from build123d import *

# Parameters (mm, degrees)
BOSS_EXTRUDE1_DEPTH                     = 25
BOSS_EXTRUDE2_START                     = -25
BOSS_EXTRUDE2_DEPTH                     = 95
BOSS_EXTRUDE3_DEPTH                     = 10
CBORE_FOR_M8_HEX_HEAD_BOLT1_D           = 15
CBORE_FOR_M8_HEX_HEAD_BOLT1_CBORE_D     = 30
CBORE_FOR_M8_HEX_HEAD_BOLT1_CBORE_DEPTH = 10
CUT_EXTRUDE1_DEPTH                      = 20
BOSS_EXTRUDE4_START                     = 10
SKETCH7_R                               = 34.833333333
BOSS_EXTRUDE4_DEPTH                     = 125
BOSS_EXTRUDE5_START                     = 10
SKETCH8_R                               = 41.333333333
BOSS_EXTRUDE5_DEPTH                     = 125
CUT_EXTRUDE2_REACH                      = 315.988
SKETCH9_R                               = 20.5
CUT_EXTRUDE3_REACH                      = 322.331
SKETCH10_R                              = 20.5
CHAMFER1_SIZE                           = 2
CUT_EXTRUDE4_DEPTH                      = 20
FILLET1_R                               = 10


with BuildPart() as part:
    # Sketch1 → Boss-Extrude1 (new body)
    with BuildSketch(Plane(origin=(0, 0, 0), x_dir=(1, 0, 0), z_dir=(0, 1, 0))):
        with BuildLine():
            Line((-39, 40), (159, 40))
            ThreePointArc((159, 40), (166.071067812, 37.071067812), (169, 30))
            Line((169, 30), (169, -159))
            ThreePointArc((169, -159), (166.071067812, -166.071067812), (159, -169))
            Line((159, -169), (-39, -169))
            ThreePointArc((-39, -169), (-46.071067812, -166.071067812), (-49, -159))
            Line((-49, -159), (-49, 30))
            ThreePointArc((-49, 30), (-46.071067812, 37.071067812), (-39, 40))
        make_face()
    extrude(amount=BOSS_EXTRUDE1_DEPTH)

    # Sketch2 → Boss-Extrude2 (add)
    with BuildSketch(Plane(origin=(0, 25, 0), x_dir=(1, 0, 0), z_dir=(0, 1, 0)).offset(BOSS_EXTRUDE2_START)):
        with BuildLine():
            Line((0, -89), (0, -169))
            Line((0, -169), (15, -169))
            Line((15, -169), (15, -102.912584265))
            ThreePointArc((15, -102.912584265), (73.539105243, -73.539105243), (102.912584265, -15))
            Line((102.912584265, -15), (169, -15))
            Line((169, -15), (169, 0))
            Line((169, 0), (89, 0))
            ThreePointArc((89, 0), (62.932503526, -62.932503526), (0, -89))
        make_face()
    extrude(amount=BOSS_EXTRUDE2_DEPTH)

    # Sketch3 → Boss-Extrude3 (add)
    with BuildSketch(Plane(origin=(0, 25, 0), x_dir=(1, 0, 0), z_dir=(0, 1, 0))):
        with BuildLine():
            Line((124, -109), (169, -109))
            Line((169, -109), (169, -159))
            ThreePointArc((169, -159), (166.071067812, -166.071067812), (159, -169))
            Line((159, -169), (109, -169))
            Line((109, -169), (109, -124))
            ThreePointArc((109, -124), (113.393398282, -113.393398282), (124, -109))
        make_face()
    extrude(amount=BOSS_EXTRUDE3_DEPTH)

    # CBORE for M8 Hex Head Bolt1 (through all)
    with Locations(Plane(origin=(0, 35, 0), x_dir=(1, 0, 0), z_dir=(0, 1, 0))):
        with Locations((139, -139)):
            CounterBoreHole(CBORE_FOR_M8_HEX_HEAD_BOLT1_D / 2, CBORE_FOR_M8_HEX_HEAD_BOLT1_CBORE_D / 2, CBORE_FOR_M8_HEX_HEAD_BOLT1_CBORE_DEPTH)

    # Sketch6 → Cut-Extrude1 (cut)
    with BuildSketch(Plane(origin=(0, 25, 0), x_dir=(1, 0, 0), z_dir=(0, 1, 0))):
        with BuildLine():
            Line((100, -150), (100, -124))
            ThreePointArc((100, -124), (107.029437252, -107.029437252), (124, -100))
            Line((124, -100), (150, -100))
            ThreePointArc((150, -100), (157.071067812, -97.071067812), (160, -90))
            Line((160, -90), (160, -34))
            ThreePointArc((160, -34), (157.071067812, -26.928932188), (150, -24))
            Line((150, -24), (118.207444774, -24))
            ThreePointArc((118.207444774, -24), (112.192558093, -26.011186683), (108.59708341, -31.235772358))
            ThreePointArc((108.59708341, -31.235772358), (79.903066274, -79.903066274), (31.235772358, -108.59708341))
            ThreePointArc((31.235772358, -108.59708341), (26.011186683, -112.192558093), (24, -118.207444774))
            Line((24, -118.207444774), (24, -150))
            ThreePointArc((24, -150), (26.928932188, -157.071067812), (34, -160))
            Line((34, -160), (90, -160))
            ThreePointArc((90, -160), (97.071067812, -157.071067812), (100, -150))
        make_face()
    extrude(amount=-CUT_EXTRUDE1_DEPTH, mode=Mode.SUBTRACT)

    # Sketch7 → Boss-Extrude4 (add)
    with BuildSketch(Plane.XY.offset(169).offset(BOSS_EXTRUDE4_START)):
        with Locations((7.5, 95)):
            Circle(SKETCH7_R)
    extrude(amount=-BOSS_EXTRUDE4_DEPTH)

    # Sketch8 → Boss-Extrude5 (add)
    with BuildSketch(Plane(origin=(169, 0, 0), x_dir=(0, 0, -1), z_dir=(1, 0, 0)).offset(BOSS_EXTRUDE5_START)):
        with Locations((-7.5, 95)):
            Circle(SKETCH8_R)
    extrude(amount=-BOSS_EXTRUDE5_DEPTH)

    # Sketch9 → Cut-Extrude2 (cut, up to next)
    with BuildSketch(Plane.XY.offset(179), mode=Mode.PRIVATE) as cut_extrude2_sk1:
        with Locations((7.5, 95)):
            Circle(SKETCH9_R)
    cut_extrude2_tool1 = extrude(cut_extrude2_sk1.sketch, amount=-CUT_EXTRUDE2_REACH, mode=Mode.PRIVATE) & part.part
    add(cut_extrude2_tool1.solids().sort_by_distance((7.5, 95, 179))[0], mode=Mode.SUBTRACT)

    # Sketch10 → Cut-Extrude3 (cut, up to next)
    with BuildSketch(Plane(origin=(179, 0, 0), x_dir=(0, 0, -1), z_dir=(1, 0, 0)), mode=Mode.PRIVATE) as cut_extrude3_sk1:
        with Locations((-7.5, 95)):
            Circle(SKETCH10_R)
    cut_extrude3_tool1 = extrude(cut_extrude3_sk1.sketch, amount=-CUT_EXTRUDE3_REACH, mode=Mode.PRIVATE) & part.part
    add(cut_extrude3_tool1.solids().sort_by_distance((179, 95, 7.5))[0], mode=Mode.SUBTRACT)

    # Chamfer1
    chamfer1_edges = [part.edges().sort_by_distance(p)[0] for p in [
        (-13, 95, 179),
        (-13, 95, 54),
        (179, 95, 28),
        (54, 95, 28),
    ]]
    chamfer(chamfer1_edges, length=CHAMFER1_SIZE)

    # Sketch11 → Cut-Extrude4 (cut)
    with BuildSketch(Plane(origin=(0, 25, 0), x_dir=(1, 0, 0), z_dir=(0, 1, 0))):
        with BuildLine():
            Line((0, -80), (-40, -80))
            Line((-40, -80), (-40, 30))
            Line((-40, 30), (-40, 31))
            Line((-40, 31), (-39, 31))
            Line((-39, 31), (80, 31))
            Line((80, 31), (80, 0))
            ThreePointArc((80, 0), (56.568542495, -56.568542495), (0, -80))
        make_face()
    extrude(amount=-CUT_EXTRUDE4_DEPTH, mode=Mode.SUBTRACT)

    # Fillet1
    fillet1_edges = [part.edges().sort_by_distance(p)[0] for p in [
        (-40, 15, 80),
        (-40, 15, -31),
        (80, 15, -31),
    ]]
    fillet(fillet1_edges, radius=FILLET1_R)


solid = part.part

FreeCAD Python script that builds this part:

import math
import FreeCAD as App
import Part
import Sketcher

V = App.Vector
Q = App.Units.Quantity


def edges_at(feature, points):
    """Names of the edges that pass closest to the given points."""
    edges = feature.Shape.Edges
    near = lambda p: min(range(len(edges)), key=lambda i: edges[i].distToShape(Part.Vertex(*p))[0])
    return sorted({f"Edge{near(p) + 1}" for p in points})

doc = App.newDocument("Part")
body = doc.addObject("PartDesign::Body", "Body")

sketch1 = body.newObject("Sketcher::SketchObject", "Sketch")
sketch1.AttachmentSupport = (doc.getObject("XZ_Plane"), [""])
sketch1.MapMode = "FlatFace"
sketch1.addGeometry(Part.LineSegment(V(159, -40, 0), V(-39, -40, 0)), False)
sketch1.addGeometry(Part.ArcOfCircle(Part.Circle(V(-39, -30, 0), V(0, 0, 1), 10), math.radians(180), math.radians(270)), False)
sketch1.addGeometry(Part.LineSegment(V(-49, -30, 0), V(-49, 159, 0)), False)
sketch1.addGeometry(Part.ArcOfCircle(Part.Circle(V(-39, 159, 0), V(0, 0, 1), 10), math.radians(90), math.radians(180)), False)
sketch1.addGeometry(Part.LineSegment(V(-39, 169, 0), V(159, 169, 0)), False)
sketch1.addGeometry(Part.ArcOfCircle(Part.Circle(V(159, 159, 0), V(0, 0, 1), 10), math.radians(0), math.radians(90)), False)
sketch1.addGeometry(Part.LineSegment(V(169, 159, 0), V(169, -30, 0)), False)
sketch1.addGeometry(Part.ArcOfCircle(Part.Circle(V(159, -30, 0), V(0, 0, 1), 10), math.radians(-90), math.radians(0)), False)
sketch1.addConstraint(Sketcher.Constraint("Tangent", 0, 2, 1, 2))
sketch1.addConstraint(Sketcher.Constraint("Tangent", 1, 1, 2, 1))
sketch1.addConstraint(Sketcher.Constraint("Tangent", 2, 2, 3, 2))
sketch1.addConstraint(Sketcher.Constraint("Tangent", 3, 1, 4, 1))
sketch1.addConstraint(Sketcher.Constraint("Tangent", 4, 2, 5, 2))
sketch1.addConstraint(Sketcher.Constraint("Tangent", 5, 1, 6, 1))
sketch1.addConstraint(Sketcher.Constraint("Tangent", 6, 2, 7, 2))
sketch1.addConstraint(Sketcher.Constraint("Tangent", 7, 1, 0, 1))
sketch1.addConstraint(Sketcher.Constraint("Horizontal", 0))
sketch1.addConstraint(Sketcher.Constraint("Vertical", 2))
sketch1.addConstraint(Sketcher.Constraint("Horizontal", 4))
sketch1.addConstraint(Sketcher.Constraint("Vertical", 6))
sketch1.addConstraint(Sketcher.Constraint("Equal", 1, 3))
sketch1.addConstraint(Sketcher.Constraint("Equal", 3, 5))
sketch1.addConstraint(Sketcher.Constraint("Equal", 5, 7))
sketch1.addConstraint(Sketcher.Constraint("Radius", 1, Q("10 mm")))
sketch1.addConstraint(Sketcher.Constraint("DistanceX", 0, 2, 0, 1, Q("198 mm")))
sketch1.addConstraint(Sketcher.Constraint("DistanceY", 2, 1, 2, 2, Q("189 mm")))
sketch1.addConstraint(Sketcher.Constraint("DistanceX", 1, 3, -1, 1, Q("39 mm")))
sketch1.addConstraint(Sketcher.Constraint("DistanceY", 1, 3, -1, 1, Q("30 mm")))
pad1 = body.newObject("PartDesign::Pad", "Pad")
pad1.Profile = sketch1
pad1.Length = 25
pad1.Reversed = True

sketch2 = body.newObject("Sketcher::SketchObject", "Sketch001")
sketch2.AttachmentSupport = (doc.getObject("XZ_Plane"), [""])
sketch2.MapMode = "FlatFace"
sketch2.addGeometry(Part.LineSegment(V(0, 89, 0), V(0, 169, 0)), False)
sketch2.addGeometry(Part.LineSegment(V(0, 169, 0), V(15, 169, 0)), False)
sketch2.addGeometry(Part.LineSegment(V(15, 169, 0), V(15, 102.912584, 0)), False)
sketch2.addGeometry(Part.ArcOfCircle(Part.Circle(V(0, 0, 0), V(0, 0, 1), 104), math.radians(8.292737), math.radians(81.707263)), False)
sketch2.addGeometry(Part.LineSegment(V(102.912584, 15, 0), V(169, 15, 0)), False)
sketch2.addGeometry(Part.LineSegment(V(169, 15, 0), V(169, 0, 0)), False)
sketch2.addGeometry(Part.LineSegment(V(169, 0, 0), V(89, 0, 0)), False)
sketch2.addGeometry(Part.ArcOfCircle(Part.Circle(V(0, 0, 0), V(0, 0, 1), 89), math.radians(0), math.radians(90)), False)
sketch2.addConstraint(Sketcher.Constraint("Coincident", 0, 2, 1, 1))
sketch2.addConstraint(Sketcher.Constraint("Coincident", 1, 2, 2, 1))
sketch2.addConstraint(Sketcher.Constraint("Coincident", 2, 2, 3, 2))
sketch2.addConstraint(Sketcher.Constraint("Coincident", 3, 1, 4, 1))
sketch2.addConstraint(Sketcher.Constraint("Coincident", 4, 2, 5, 1))
sketch2.addConstraint(Sketcher.Constraint("Coincident", 5, 2, 6, 1))
sketch2.addConstraint(Sketcher.Constraint("Coincident", 6, 2, 7, 1))
sketch2.addConstraint(Sketcher.Constraint("Coincident", 7, 2, 0, 1))
sketch2.addConstraint(Sketcher.Constraint("Vertical", 0))
sketch2.addConstraint(Sketcher.Constraint("Horizontal", 1))
sketch2.addConstraint(Sketcher.Constraint("Vertical", 2))
sketch2.addConstraint(Sketcher.Constraint("Horizontal", 4))
sketch2.addConstraint(Sketcher.Constraint("Vertical", 5))
sketch2.addConstraint(Sketcher.Constraint("Horizontal", 6))
sketch2.addConstraint(Sketcher.Constraint("Coincident", 3, 3, -1, 1))
sketch2.addConstraint(Sketcher.Constraint("Coincident", 7, 3, -1, 1))
sketch2.addConstraint(Sketcher.Constraint("PointOnObject", 0, 2, -2))
sketch2.addConstraint(Sketcher.Constraint("PointOnObject", 5, 2, -1))
sketch2.addConstraint(Sketcher.Constraint("Equal", 6, 0))
sketch2.addConstraint(Sketcher.Constraint("Equal", 4, 2))
sketch2.addConstraint(Sketcher.Constraint("Radius", 3, Q("104 mm")))
sketch2.addConstraint(Sketcher.Constraint("Radius", 7, Q("89 mm")))
sketch2.addConstraint(Sketcher.Constraint("DistanceX", 1, 1, 1, 2, Q("15 mm")))
sketch2.addConstraint(Sketcher.Constraint("DistanceX", 6, 2, 6, 1, Q("80 mm")))
pad2 = body.newObject("PartDesign::Pad", "Pad001")
pad2.Profile = sketch2
pad2.Length = 95
pad2.Reversed = True

sketch3 = body.newObject("Sketcher::SketchObject", "Sketch002")
sketch3.AttachmentSupport = (doc.getObject("XZ_Plane"), [""])
sketch3.MapMode = "FlatFace"
sketch3.AttachmentOffset = App.Placement(V(0, 0, -25), App.Rotation())
sketch3.addGeometry(Part.LineSegment(V(169, 109, 0), V(124, 109, 0)), False)
sketch3.addGeometry(Part.ArcOfCircle(Part.Circle(V(124, 124, 0), V(0, 0, 1), 15), math.radians(180), math.radians(270)), False)
sketch3.addGeometry(Part.LineSegment(V(109, 124, 0), V(109, 169, 0)), False)
sketch3.addGeometry(Part.LineSegment(V(109, 169, 0), V(159, 169, 0)), False)
sketch3.addGeometry(Part.ArcOfCircle(Part.Circle(V(159, 159, 0), V(0, 0, 1), 10), math.radians(0), math.radians(90)), False)
sketch3.addGeometry(Part.LineSegment(V(169, 159, 0), V(169, 109, 0)), False)
sketch3.addConstraint(Sketcher.Constraint("Tangent", 0, 2, 1, 2))
sketch3.addConstraint(Sketcher.Constraint("Tangent", 1, 1, 2, 1))
sketch3.addConstraint(Sketcher.Constraint("Coincident", 2, 2, 3, 1))
sketch3.addConstraint(Sketcher.Constraint("Tangent", 3, 2, 4, 2))
sketch3.addConstraint(Sketcher.Constraint("Tangent", 4, 1, 5, 1))
sketch3.addConstraint(Sketcher.Constraint("Coincident", 5, 2, 0, 1))
sketch3.addConstraint(Sketcher.Constraint("Horizontal", 0))
sketch3.addConstraint(Sketcher.Constraint("Vertical", 2))
sketch3.addConstraint(Sketcher.Constraint("Horizontal", 3))
sketch3.addConstraint(Sketcher.Constraint("Vertical", 5))
sketch3.addConstraint(Sketcher.Constraint("Equal", 0, 2))
sketch3.addConstraint(Sketcher.Constraint("Radius", 1, Q("15 mm")))
sketch3.addConstraint(Sketcher.Constraint("Radius", 4, Q("10 mm")))
sketch3.addConstraint(Sketcher.Constraint("DistanceX", 0, 2, 0, 1, Q("45 mm")))
sketch3.addConstraint(Sketcher.Constraint("DistanceX", -1, 1, 1, 3, Q("124 mm")))
sketch3.addConstraint(Sketcher.Constraint("DistanceY", -1, 1, 1, 3, Q("124 mm")))
pad3 = body.newObject("PartDesign::Pad", "Pad002")
pad3.Profile = sketch3
pad3.Length = 10
pad3.Reversed = True

sketch4 = body.newObject("Sketcher::SketchObject", "Sketch003")
sketch4.AttachmentSupport = (doc.getObject("XZ_Plane"), [""])
sketch4.MapMode = "FlatFace"
sketch4.AttachmentOffset = App.Placement(V(0, 0, -35), App.Rotation())
sketch4.addGeometry(Part.Circle(V(139, 139, 0), V(0, 0, 1), 7.5), False)
sketch4.addConstraint(Sketcher.Constraint("Diameter", 0, Q("15 mm")))
sketch4.addConstraint(Sketcher.Constraint("DistanceX", -1, 1, 0, 3, Q("139 mm")))
sketch4.addConstraint(Sketcher.Constraint("DistanceY", -1, 1, 0, 3, Q("139 mm")))
doc.recompute()
hole = body.newObject("PartDesign::Hole", "Hole")
hole.Profile = sketch4
hole.ThreadType = "None"
hole.Diameter = 15
hole.DepthType = "ThroughAll"
hole.HoleCutType = "Counterbore"
hole.HoleCutDiameter = 30
hole.HoleCutDepth = 10
hole.Reversed = True

sketch5 = body.newObject("Sketcher::SketchObject", "Sketch004")
sketch5.AttachmentSupport = (doc.getObject("XZ_Plane"), [""])
sketch5.MapMode = "FlatFace"
sketch5.AttachmentOffset = App.Placement(V(0, 0, -25), App.Rotation())
sketch5.addGeometry(Part.LineSegment(V(100, 150, 0), V(100, 124, 0)), False)
sketch5.addGeometry(Part.ArcOfCircle(Part.Circle(V(124, 124, 0), V(0, 0, 1), 24), math.radians(-180), math.radians(-90)), False)
sketch5.addGeometry(Part.LineSegment(V(124, 100, 0), V(150, 100, 0)), False)
sketch5.addGeometry(Part.ArcOfCircle(Part.Circle(V(150, 90, 0), V(0, 0, 1), 10), math.radians(0), math.radians(90)), False)
sketch5.addGeometry(Part.LineSegment(V(160, 90, 0), V(160, 34, 0)), False)
sketch5.addGeometry(Part.ArcOfCircle(Part.Circle(V(150, 34, 0), V(0, 0, 1), 10), math.radians(-90), math.radians(0)), False)
sketch5.addGeometry(Part.LineSegment(V(150, 24, 0), V(118.207445, 24, 0)), False)
sketch5.addGeometry(Part.ArcOfCircle(Part.Circle(V(118.207445, 34, 0), V(0, 0, 1), 10), math.radians(-163.95318), math.radians(-90)), False)
sketch5.addGeometry(Part.ArcOfCircle(Part.Circle(V(0, 0, 0), V(0, 0, 1), 113), math.radians(16.04682), math.radians(73.95318)), False)
sketch5.addGeometry(Part.ArcOfCircle(Part.Circle(V(34, 118.207445, 0), V(0, 0, 1), 10), math.radians(180), math.radians(253.95318)), False)
sketch5.addGeometry(Part.LineSegment(V(24, 118.207445, 0), V(24, 150, 0)), False)
sketch5.addGeometry(Part.ArcOfCircle(Part.Circle(V(34, 150, 0), V(0, 0, 1), 10), math.radians(90), math.radians(180)), False)
sketch5.addGeometry(Part.LineSegment(V(34, 160, 0), V(90, 160, 0)), False)
sketch5.addGeometry(Part.ArcOfCircle(Part.Circle(V(90, 150, 0), V(0, 0, 1), 10), math.radians(0), math.radians(90)), False)
sketch5.addConstraint(Sketcher.Constraint("Tangent", 0, 2, 1, 1))
sketch5.addConstraint(Sketcher.Constraint("Tangent", 1, 2, 2, 1))
sketch5.addConstraint(Sketcher.Constraint("Tangent", 2, 2, 3, 2))
sketch5.addConstraint(Sketcher.Constraint("Tangent", 3, 1, 4, 1))
sketch5.addConstraint(Sketcher.Constraint("Tangent", 4, 2, 5, 2))
sketch5.addConstraint(Sketcher.Constraint("Tangent", 5, 1, 6, 1))
sketch5.addConstraint(Sketcher.Constraint("Tangent", 6, 2, 7, 2))
sketch5.addConstraint(Sketcher.Constraint("Tangent", 7, 1, 8, 1))
sketch5.addConstraint(Sketcher.Constraint("Tangent", 8, 2, 9, 2))
sketch5.addConstraint(Sketcher.Constraint("Tangent", 9, 1, 10, 1))
sketch5.addConstraint(Sketcher.Constraint("Tangent", 10, 2, 11, 2))
sketch5.addConstraint(Sketcher.Constraint("Tangent", 11, 1, 12, 1))
sketch5.addConstraint(Sketcher.Constraint("Tangent", 12, 2, 13, 2))
sketch5.addConstraint(Sketcher.Constraint("Tangent", 13, 1, 0, 1))
sketch5.addConstraint(Sketcher.Constraint("Vertical", 0))
sketch5.addConstraint(Sketcher.Constraint("Horizontal", 2))
sketch5.addConstraint(Sketcher.Constraint("Vertical", 4))
sketch5.addConstraint(Sketcher.Constraint("Horizontal", 6))
sketch5.addConstraint(Sketcher.Constraint("Vertical", 10))
sketch5.addConstraint(Sketcher.Constraint("Horizontal", 12))
sketch5.addConstraint(Sketcher.Constraint("Coincident", 8, 3, -1, 1))
sketch5.addConstraint(Sketcher.Constraint("Equal", 3, 5))
sketch5.addConstraint(Sketcher.Constraint("Equal", 5, 7))
sketch5.addConstraint(Sketcher.Constraint("Equal", 7, 9))
sketch5.addConstraint(Sketcher.Constraint("Equal", 9, 11))
sketch5.addConstraint(Sketcher.Constraint("Equal", 11, 13))
sketch5.addConstraint(Sketcher.Constraint("Equal", 2, 0))
sketch5.addConstraint(Sketcher.Constraint("Equal", 12, 4))
sketch5.addConstraint(Sketcher.Constraint("Equal", 6, 10))
sketch5.addConstraint(Sketcher.Constraint("Radius", 1, Q("24 mm")))
sketch5.addConstraint(Sketcher.Constraint("Radius", 3, Q("10 mm")))
sketch5.addConstraint(Sketcher.Constraint("Radius", 8, Q("113 mm")))
sketch5.addConstraint(Sketcher.Constraint("DistanceX", 2, 1, 2, 2, Q("26 mm")))
sketch5.addConstraint(Sketcher.Constraint("DistanceX", 12, 1, 12, 2, Q("56 mm")))
sketch5.addConstraint(Sketcher.Constraint("DistanceX", -1, 1, 1, 3, Q("124 mm")))
pocket1 = body.newObject("PartDesign::Pocket", "Pocket")
pocket1.Profile = sketch5
pocket1.Length = 20
pocket1.Reversed = True

sketch6 = body.newObject("Sketcher::SketchObject", "Sketch005")
sketch6.AttachmentSupport = (doc.getObject("XY_Plane"), [""])
sketch6.MapMode = "FlatFace"
sketch6.AttachmentOffset = App.Placement(V(0, 0, 179), App.Rotation())
sketch6.addGeometry(Part.Circle(V(7.5, 95, 0), V(0, 0, 1), 34.833333), False)
sketch6.addConstraint(Sketcher.Constraint("DistanceY", -1, 1, 0, 3, Q("95 mm")))
sketch6.addConstraint(Sketcher.Constraint("DistanceX", -1, 1, 0, 3, Q("7.5 mm")))
sketch6.addConstraint(Sketcher.Constraint("Diameter", 0, Q("69.666667 mm")))
pad4 = body.newObject("PartDesign::Pad", "Pad003")
pad4.Profile = sketch6
pad4.Length = 125
pad4.Reversed = True

sketch7 = body.newObject("Sketcher::SketchObject", "Sketch006")
sketch7.AttachmentSupport = (doc.getObject("YZ_Plane"), [""])
sketch7.MapMode = "FlatFace"
sketch7.AttachmentOffset = App.Placement(V(0, 0, 179), App.Rotation())
sketch7.addGeometry(Part.Circle(V(95, 7.5, 0), V(0, 0, 1), 41.333333), False)
sketch7.addConstraint(Sketcher.Constraint("DistanceX", -1, 1, 0, 3, Q("95 mm")))
sketch7.addConstraint(Sketcher.Constraint("DistanceY", -1, 1, 0, 3, Q("7.5 mm")))
sketch7.addConstraint(Sketcher.Constraint("Diameter", 0, Q("82.666667 mm")))
pad5 = body.newObject("PartDesign::Pad", "Pad004")
pad5.Profile = sketch7
pad5.Length = 125
pad5.Reversed = True

sketch8 = body.newObject("Sketcher::SketchObject", "Sketch007")
sketch8.AttachmentSupport = (doc.getObject("XY_Plane"), [""])
sketch8.MapMode = "FlatFace"
sketch8.AttachmentOffset = App.Placement(V(0, 0, 179), App.Rotation())
sketch8.addGeometry(Part.Circle(V(7.5, 95, 0), V(0, 0, 1), 20.5), False)
sketch8.addConstraint(Sketcher.Constraint("Diameter", 0, Q("41 mm")))
sketch8.addConstraint(Sketcher.Constraint("DistanceY", -1, 1, 0, 3, Q("95 mm")))
sketch8.addConstraint(Sketcher.Constraint("DistanceX", -1, 1, 0, 3, Q("7.5 mm")))
pocket2 = body.newObject("PartDesign::Pocket", "Pocket001")
pocket2.Profile = sketch8
pocket2.Type = "UpToFirst"

sketch9 = body.newObject("Sketcher::SketchObject", "Sketch008")
sketch9.AttachmentSupport = (doc.getObject("YZ_Plane"), [""])
sketch9.MapMode = "FlatFace"
sketch9.AttachmentOffset = App.Placement(V(0, 0, 179), App.Rotation())
sketch9.addGeometry(Part.Circle(V(95, 7.5, 0), V(0, 0, 1), 20.5), False)
sketch9.addConstraint(Sketcher.Constraint("Diameter", 0, Q("41 mm")))
sketch9.addConstraint(Sketcher.Constraint("DistanceX", -1, 1, 0, 3, Q("95 mm")))
sketch9.addConstraint(Sketcher.Constraint("DistanceY", -1, 1, 0, 3, Q("7.5 mm")))
pocket3 = body.newObject("PartDesign::Pocket", "Pocket002")
pocket3.Profile = sketch9
pocket3.Type = "UpToFirst"
doc.recompute()

chamfer = body.newObject("PartDesign::Chamfer", "Chamfer")
chamfer.Base = (pocket3, edges_at(pocket3, [
    (-13, 95, 179),
    (-13, 95, 54),
    (179, 95, 28),
    (54, 95, 28),
]))
chamfer.Size = 2

sketch10 = body.newObject("Sketcher::SketchObject", "Sketch009")
sketch10.AttachmentSupport = (doc.getObject("XZ_Plane"), [""])
sketch10.MapMode = "FlatFace"
sketch10.AttachmentOffset = App.Placement(V(0, 0, -25), App.Rotation())
sketch10.addGeometry(Part.LineSegment(V(-40, 80, 0), V(0, 80, 0)), False)
sketch10.addGeometry(Part.ArcOfCircle(Part.Circle(V(0, 0, 0), V(0, 0, 1), 80), math.radians(0), math.radians(90)), False)
sketch10.addGeometry(Part.LineSegment(V(80, 0, 0), V(80, -31, 0)), False)
sketch10.addGeometry(Part.LineSegment(V(80, -31, 0), V(-40, -31, 0)), False)
sketch10.addGeometry(Part.LineSegment(V(-40, -31, 0), V(-40, 80, 0)), False)
sketch10.addConstraint(Sketcher.Constraint("Tangent", 0, 2, 1, 2))
sketch10.addConstraint(Sketcher.Constraint("Tangent", 1, 1, 2, 1))
sketch10.addConstraint(Sketcher.Constraint("Coincident", 2, 2, 3, 1))
sketch10.addConstraint(Sketcher.Constraint("Coincident", 3, 2, 4, 1))
sketch10.addConstraint(Sketcher.Constraint("Coincident", 4, 2, 0, 1))
sketch10.addConstraint(Sketcher.Constraint("Horizontal", 0))
sketch10.addConstraint(Sketcher.Constraint("Vertical", 2))
sketch10.addConstraint(Sketcher.Constraint("Horizontal", 3))
sketch10.addConstraint(Sketcher.Constraint("Vertical", 4))
sketch10.addConstraint(Sketcher.Constraint("Coincident", 1, 3, -1, 1))
sketch10.addConstraint(Sketcher.Constraint("Radius", 1, Q("80 mm")))
sketch10.addConstraint(Sketcher.Constraint("DistanceX", 0, 1, 0, 2, Q("40 mm")))
sketch10.addConstraint(Sketcher.Constraint("DistanceY", 2, 2, 2, 1, Q("31 mm")))
pocket4 = body.newObject("PartDesign::Pocket", "Pocket003")
pocket4.Profile = sketch10
pocket4.Length = 20
pocket4.Reversed = True
doc.recompute()

fillet = body.newObject("PartDesign::Fillet", "Fillet")
fillet.Base = (pocket4, edges_at(pocket4, [(-40, 15, 80), (-40, 15, -31), (80, 15, -31)]))
fillet.Radius = 10

doc.recompute()
